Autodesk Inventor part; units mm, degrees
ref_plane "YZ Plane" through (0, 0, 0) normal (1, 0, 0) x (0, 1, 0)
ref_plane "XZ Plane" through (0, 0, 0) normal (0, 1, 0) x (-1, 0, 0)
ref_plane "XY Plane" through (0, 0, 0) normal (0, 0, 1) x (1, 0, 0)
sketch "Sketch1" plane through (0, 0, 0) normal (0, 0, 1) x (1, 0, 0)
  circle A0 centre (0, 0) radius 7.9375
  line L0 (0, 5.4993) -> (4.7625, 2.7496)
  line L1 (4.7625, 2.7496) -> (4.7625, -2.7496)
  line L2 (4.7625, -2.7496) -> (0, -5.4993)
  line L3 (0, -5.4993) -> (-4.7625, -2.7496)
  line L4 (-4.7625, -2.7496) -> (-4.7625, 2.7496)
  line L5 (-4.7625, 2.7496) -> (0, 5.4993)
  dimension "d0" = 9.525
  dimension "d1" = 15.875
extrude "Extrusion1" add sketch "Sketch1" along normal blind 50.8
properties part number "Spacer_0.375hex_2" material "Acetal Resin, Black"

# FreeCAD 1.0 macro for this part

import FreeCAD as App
import Part
import Sketcher
from FreeCAD import Vector
Q = App.Units.Quantity

doc = App.newDocument("Part")
body = doc.addObject("PartDesign::Body", "Body")

sketch1 = body.newObject("Sketcher::SketchObject", "Sketch")
sketch1.AttachmentSupport = (doc.getObject("XY_Plane"), [""])
sketch1.MapMode = "FlatFace"
sketch1.addGeometry([
    Part.Circle(Vector(0, 0, 0), Vector(0, 0, 1), 8),
    Part.LineSegment(Vector(-5, 3, 0), Vector(0, 5, 0)),
    Part.LineSegment(Vector(0, 5, 0), Vector(5, 3, 0)),
    Part.LineSegment(Vector(5, 3, 0), Vector(5, -3, 0)),
    Part.LineSegment(Vector(5, -3, 0), Vector(0, -5, 0)),
    Part.LineSegment(Vector(0, -5, 0), Vector(-5, -3, 0)),
    Part.LineSegment(Vector(-5, -3, 0), Vector(-5, 3, 0)),
], False)
sketch1.addConstraint([
    Sketcher.Constraint("Coincident", 1, 2, 2, 1),
    Sketcher.Constraint("Coincident", 2, 2, 3, 1),
    Sketcher.Constraint("Coincident", 3, 2, 4, 1),
    Sketcher.Constraint("Coincident", 4, 2, 5, 1),
    Sketcher.Constraint("Coincident", 5, 2, 6, 1),
    Sketcher.Constraint("Coincident", 6, 2, 1, 1),
    Sketcher.Constraint("Vertical", 3),
    Sketcher.Constraint("Vertical", 6),
    Sketcher.Constraint("Coincident", 0, 3, -1, 1),
    Sketcher.Constraint("Symmetric", 1, 2, 4, 2, -1, 1),
    Sketcher.Constraint("Symmetric", 2, 2, 5, 2, -1, 1),
    Sketcher.Constraint("PointOnObject", 1, 2, -2),
    Sketcher.Constraint("Parallel", 1, 4),
    Sketcher.Constraint("Horizontal", 3, 2, 5, 2),
    Sketcher.Constraint("Diameter", 0, Q("0.625 in")),
    Sketcher.Constraint("Angle", 1, Q("30.0006 deg")),
    Sketcher.Constraint("DistanceX", 5, 2, 3, 2, Q("0.375 in")),
    Sketcher.Constraint("DistanceY", 3, 2, 3, 1, Q("0.2165 in")),
])
pad1 = body.newObject("PartDesign::Pad", "Pad")
pad1.Profile = sketch1
pad1.Length = Q("2 in")

doc.recompute()
